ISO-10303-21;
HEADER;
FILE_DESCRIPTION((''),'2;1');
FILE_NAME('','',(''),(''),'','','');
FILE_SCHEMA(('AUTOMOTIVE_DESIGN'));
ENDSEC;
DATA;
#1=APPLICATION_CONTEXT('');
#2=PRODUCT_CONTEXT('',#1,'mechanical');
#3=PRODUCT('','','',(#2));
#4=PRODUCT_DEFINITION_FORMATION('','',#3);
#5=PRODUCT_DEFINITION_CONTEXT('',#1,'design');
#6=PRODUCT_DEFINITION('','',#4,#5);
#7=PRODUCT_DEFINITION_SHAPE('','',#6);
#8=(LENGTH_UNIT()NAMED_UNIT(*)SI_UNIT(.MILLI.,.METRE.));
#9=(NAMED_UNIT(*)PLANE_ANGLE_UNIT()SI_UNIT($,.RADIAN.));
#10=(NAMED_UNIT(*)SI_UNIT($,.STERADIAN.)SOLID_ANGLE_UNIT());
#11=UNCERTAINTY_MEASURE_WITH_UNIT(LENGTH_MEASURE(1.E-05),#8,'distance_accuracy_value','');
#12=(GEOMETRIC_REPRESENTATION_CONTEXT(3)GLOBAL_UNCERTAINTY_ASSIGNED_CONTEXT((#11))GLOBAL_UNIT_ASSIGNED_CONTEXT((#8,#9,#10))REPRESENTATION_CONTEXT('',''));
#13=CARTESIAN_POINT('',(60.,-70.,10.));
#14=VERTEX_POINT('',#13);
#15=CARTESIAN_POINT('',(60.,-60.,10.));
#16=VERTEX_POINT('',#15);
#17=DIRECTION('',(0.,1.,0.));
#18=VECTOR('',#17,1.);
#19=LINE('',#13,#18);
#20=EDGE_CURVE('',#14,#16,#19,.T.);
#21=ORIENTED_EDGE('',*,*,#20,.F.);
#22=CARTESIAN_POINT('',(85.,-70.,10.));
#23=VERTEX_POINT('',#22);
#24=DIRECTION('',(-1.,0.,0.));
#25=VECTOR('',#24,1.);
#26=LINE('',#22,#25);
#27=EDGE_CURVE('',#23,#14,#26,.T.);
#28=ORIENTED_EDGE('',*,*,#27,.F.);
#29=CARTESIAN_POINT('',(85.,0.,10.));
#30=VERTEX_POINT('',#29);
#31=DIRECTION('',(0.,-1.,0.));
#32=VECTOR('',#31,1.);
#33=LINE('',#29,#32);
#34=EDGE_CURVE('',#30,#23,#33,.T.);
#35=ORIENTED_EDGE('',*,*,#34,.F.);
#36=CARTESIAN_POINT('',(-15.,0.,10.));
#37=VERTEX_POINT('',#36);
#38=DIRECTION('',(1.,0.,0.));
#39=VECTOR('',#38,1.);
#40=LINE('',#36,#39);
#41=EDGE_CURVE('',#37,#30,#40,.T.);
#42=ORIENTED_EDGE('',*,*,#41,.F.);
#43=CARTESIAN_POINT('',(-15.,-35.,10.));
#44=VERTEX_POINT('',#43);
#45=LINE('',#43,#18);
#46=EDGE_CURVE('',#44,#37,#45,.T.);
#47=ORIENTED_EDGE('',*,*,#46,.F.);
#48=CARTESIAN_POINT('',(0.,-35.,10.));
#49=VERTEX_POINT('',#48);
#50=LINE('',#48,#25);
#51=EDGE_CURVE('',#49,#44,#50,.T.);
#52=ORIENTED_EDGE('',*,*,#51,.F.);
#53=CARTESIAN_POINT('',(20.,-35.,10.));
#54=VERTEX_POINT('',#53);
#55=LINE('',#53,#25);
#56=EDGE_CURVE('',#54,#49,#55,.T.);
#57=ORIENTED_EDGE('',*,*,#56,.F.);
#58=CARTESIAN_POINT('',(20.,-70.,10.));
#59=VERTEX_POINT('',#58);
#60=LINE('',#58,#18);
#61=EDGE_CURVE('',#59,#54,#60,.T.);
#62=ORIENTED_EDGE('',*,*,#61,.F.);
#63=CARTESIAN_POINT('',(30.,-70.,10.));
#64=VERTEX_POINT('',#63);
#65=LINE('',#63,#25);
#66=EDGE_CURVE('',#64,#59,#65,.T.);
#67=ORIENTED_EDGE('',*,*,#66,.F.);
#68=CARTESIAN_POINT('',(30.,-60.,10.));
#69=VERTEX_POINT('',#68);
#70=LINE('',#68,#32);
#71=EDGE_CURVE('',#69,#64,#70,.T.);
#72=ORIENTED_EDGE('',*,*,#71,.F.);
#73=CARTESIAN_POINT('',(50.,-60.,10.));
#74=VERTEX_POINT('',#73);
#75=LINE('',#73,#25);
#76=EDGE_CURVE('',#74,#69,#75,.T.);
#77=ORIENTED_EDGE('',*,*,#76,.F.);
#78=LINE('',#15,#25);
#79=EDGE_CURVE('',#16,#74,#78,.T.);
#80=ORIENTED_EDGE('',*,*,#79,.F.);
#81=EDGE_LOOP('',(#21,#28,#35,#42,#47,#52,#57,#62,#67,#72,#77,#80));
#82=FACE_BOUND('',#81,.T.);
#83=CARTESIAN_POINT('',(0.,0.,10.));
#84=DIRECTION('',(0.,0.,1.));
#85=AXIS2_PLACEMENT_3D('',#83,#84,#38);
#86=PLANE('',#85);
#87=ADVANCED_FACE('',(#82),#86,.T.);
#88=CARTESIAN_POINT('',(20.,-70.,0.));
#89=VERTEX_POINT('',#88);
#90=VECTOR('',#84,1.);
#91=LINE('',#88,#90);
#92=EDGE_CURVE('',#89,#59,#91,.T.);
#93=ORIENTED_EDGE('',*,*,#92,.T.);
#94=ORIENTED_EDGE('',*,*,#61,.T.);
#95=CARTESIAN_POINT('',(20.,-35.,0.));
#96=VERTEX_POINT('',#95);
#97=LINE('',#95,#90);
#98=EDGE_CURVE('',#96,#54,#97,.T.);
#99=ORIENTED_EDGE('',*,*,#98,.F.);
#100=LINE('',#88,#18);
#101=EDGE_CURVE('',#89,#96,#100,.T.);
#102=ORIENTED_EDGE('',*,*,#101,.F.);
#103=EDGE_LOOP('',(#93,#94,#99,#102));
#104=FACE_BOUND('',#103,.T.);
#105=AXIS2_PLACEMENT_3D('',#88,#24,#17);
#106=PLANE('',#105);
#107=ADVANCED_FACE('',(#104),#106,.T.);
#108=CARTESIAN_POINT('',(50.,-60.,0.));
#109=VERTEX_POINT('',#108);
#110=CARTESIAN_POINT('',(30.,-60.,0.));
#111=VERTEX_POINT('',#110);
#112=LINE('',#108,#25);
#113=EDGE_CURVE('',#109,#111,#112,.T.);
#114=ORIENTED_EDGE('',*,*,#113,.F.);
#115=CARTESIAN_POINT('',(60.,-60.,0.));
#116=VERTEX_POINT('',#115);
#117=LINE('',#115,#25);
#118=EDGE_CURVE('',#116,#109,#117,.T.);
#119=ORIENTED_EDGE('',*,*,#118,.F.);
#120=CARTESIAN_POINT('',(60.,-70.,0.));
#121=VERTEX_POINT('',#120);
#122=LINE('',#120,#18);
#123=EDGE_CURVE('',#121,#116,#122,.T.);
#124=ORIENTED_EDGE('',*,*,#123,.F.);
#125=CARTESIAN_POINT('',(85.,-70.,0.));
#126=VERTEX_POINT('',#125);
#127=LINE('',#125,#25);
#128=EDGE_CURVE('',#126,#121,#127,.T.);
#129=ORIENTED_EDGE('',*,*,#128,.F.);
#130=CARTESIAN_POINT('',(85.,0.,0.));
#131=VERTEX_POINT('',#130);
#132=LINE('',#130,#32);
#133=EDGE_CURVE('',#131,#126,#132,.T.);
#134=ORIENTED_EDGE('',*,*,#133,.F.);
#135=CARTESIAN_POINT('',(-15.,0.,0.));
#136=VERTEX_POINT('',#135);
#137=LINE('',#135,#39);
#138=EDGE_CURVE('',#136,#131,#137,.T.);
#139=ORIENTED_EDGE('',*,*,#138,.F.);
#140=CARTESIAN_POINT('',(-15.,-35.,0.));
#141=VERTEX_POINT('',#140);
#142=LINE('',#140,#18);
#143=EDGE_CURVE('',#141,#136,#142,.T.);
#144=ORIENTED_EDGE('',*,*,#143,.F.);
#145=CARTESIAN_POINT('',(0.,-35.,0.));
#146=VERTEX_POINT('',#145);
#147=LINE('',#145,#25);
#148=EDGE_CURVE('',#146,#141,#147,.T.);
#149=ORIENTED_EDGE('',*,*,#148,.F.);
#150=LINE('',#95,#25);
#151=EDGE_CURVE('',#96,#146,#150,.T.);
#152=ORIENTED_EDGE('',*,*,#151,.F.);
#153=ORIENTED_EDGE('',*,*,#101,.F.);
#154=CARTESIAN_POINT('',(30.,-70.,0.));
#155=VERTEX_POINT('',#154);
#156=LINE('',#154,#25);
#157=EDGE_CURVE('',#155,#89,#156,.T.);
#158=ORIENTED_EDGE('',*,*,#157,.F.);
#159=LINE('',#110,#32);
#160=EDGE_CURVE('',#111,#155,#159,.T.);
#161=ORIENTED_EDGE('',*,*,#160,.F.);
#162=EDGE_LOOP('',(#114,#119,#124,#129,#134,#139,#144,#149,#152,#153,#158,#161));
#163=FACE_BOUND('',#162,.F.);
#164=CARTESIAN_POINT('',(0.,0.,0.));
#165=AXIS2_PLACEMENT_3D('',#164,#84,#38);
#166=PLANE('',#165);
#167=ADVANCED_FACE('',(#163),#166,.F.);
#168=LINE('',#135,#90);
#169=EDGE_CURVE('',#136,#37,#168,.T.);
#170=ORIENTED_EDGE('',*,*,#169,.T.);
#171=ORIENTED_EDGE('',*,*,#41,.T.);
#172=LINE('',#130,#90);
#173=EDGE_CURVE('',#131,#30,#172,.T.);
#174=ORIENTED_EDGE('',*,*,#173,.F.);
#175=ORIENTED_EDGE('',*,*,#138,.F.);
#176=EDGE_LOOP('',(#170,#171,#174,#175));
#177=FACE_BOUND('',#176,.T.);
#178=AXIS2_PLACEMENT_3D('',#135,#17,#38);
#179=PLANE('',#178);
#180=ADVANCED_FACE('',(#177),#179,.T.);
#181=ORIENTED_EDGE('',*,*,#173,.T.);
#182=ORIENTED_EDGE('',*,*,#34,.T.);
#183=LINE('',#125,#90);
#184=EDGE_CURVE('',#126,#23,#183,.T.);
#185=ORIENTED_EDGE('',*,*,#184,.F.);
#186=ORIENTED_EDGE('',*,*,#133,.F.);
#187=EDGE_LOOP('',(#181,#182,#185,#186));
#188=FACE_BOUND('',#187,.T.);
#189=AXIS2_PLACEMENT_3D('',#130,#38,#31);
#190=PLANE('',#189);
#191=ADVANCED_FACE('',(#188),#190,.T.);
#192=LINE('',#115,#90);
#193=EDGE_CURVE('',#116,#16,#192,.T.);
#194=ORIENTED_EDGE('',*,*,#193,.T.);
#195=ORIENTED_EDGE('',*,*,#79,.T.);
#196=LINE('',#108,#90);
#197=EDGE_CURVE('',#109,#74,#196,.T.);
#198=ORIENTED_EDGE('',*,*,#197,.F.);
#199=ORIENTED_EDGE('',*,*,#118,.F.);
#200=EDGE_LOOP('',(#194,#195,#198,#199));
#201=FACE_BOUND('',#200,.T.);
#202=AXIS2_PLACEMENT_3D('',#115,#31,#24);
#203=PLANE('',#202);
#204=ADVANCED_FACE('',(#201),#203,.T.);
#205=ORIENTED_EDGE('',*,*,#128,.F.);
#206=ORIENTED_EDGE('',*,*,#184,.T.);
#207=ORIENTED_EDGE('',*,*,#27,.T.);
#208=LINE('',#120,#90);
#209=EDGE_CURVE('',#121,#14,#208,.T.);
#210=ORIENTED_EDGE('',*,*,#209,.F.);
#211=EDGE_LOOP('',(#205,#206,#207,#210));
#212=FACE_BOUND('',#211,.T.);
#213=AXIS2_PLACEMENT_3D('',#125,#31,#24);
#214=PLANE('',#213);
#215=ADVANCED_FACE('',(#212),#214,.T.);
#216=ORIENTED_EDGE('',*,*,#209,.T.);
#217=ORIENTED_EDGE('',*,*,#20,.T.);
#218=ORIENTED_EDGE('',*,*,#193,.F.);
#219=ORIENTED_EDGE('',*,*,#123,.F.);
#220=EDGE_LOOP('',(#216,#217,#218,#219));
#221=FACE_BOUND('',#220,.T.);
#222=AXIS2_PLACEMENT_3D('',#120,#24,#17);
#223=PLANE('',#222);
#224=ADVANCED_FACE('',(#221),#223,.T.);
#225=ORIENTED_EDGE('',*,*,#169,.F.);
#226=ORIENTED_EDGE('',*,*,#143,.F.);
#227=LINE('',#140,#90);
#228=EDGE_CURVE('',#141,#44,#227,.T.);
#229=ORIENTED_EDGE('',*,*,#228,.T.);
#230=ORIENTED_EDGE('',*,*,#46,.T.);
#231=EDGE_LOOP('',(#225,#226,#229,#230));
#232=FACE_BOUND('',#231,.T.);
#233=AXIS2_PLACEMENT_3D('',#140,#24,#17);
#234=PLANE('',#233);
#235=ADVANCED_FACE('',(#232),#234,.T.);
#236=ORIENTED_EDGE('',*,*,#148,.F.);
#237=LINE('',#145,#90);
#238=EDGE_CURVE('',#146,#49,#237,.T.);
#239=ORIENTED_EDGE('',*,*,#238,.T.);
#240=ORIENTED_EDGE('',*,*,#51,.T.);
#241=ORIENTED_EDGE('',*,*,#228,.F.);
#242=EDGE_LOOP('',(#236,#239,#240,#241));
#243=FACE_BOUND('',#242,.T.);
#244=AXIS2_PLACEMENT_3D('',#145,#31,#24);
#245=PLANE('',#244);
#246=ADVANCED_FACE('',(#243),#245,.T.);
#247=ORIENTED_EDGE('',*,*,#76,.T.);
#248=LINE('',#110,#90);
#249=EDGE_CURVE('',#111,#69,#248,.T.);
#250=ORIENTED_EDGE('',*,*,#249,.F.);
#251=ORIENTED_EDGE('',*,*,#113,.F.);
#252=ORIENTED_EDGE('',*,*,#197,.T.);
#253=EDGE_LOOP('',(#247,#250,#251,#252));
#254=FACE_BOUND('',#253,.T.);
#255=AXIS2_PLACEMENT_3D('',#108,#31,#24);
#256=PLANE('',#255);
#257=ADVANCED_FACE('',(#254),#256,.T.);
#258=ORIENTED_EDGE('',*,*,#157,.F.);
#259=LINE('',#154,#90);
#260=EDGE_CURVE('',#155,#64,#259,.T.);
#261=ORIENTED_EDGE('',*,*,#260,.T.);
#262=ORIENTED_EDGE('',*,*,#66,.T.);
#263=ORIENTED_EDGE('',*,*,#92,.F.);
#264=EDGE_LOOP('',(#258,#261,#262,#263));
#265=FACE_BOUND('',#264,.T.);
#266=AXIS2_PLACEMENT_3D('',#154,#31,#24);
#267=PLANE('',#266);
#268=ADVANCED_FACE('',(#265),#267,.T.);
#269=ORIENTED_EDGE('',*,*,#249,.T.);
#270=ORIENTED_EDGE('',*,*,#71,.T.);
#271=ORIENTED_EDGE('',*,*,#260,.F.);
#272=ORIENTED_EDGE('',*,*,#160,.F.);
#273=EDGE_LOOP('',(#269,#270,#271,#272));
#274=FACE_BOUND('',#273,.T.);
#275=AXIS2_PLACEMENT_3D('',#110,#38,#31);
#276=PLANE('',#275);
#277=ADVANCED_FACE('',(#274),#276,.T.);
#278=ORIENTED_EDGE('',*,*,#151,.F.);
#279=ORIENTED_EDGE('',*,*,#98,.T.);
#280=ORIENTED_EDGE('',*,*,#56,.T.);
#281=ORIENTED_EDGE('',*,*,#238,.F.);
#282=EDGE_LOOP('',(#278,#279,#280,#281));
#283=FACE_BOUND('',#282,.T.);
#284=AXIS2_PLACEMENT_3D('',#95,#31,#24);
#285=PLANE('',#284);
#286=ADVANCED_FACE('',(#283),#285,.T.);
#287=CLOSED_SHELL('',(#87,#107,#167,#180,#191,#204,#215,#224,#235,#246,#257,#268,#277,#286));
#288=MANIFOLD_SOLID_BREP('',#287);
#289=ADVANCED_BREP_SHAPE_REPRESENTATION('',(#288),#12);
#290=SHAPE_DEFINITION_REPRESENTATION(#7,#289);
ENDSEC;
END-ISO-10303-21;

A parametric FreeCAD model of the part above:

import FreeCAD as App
import Part
import Sketcher
from FreeCAD import Vector
Q = App.Units.Quantity


def add_polygon(sketch, points):
    """Adds a closed chain of lines whose ends are joined by coincident constraints."""
    first, n = sketch.GeometryCount, len(points)
    for a, b in zip(points, points[1:] + points[:1]):
        sketch.addGeometry(Part.LineSegment(App.Vector(*a, 0), App.Vector(*b, 0)), False)
    for i in range(n):
        sketch.addConstraint(Sketcher.Constraint("Coincident", first + i, 2, first + (i + 1) % n, 1))

doc = App.newDocument("Part")
params = doc.addObject("Spreadsheet::Sheet", "Params")
for row, (alias, value) in enumerate([
    ("sketch1_width", "100 mm"),
    ("sketch1_width2", "35 mm"),
    ("sketch1_width3", "10 mm"),
    ("sketch1_width4", "30 mm"),
    ("pad1_length", "10 mm"),
], start=1):
    params.set(f"A{row}", alias)
    params.set(f"B{row}", "=" + value)
    params.setAlias(f"B{row}", alias)

body = doc.addObject("PartDesign::Body", "Body")

# Sketch on XY plane
sketch1 = doc.addObject("Sketcher::SketchObject", "Sketch")
body.addObject(sketch1)
sketch1.AttachmentSupport = (doc.XY_Plane, [""])
sketch1.MapMode = "FlatFace"
add_polygon(sketch1, [(85, 0), (-15, 0), (-15, -35), (20, -35), (20, -70), (30, -70), (30, -60), (60, -60), (60, -70), (85, -70)])  # lines 0-9
sketch1.addConstraint(Sketcher.Constraint("Horizontal", 0))
sketch1.addConstraint(Sketcher.Constraint("Vertical", 1))
sketch1.addConstraint(Sketcher.Constraint("Horizontal", 2))
sketch1.addConstraint(Sketcher.Constraint("Vertical", 3))
sketch1.addConstraint(Sketcher.Constraint("Horizontal", 4))
sketch1.addConstraint(Sketcher.Constraint("Vertical", 5))
sketch1.addConstraint(Sketcher.Constraint("Horizontal", 6))
sketch1.addConstraint(Sketcher.Constraint("Vertical", 7))
sketch1.addConstraint(Sketcher.Constraint("Horizontal", 8))
sketch1.addConstraint(Sketcher.Constraint("Vertical", 9))
sketch1.addConstraint(Sketcher.Constraint("PointOnObject", 0, 2, -1))
sketch1.addConstraint(Sketcher.Constraint("Horizontal", 4, 2, 7, 2))
sketch1.addConstraint(Sketcher.Constraint("Equal", 2, 1))
sketch1.addConstraint(Sketcher.Constraint("Equal", 1, 3))
sketch1.addConstraint(Sketcher.Constraint("Equal", 4, 5))
sketch1.addConstraint(Sketcher.Constraint("DistanceX", 0, 2, 0, 1, Q("100 mm")))
sketch1.addConstraint(Sketcher.Constraint("DistanceX", 2, 1, 2, 2, Q("35 mm")))
sketch1.addConstraint(Sketcher.Constraint("DistanceX", 4, 1, 4, 2, Q("10 mm")))
sketch1.addConstraint(Sketcher.Constraint("DistanceX", 6, 1, 6, 2, Q("30 mm")))
sketch1.addConstraint(Sketcher.Constraint("DistanceX", 0, 2, -1, 1, Q("15 mm")))
sketch1.setExpression("Constraints[25]", "Params.sketch1_width")
sketch1.setExpression("Constraints[26]", "Params.sketch1_width2")
sketch1.setExpression("Constraints[27]", "Params.sketch1_width3")
sketch1.setExpression("Constraints[28]", "Params.sketch1_width4")
pad1 = doc.addObject("PartDesign::Pad", "Pad")
body.addObject(pad1)
pad1.Profile = sketch1
pad1.setExpression("Length", "Params.pad1_length")

doc.recompute()
